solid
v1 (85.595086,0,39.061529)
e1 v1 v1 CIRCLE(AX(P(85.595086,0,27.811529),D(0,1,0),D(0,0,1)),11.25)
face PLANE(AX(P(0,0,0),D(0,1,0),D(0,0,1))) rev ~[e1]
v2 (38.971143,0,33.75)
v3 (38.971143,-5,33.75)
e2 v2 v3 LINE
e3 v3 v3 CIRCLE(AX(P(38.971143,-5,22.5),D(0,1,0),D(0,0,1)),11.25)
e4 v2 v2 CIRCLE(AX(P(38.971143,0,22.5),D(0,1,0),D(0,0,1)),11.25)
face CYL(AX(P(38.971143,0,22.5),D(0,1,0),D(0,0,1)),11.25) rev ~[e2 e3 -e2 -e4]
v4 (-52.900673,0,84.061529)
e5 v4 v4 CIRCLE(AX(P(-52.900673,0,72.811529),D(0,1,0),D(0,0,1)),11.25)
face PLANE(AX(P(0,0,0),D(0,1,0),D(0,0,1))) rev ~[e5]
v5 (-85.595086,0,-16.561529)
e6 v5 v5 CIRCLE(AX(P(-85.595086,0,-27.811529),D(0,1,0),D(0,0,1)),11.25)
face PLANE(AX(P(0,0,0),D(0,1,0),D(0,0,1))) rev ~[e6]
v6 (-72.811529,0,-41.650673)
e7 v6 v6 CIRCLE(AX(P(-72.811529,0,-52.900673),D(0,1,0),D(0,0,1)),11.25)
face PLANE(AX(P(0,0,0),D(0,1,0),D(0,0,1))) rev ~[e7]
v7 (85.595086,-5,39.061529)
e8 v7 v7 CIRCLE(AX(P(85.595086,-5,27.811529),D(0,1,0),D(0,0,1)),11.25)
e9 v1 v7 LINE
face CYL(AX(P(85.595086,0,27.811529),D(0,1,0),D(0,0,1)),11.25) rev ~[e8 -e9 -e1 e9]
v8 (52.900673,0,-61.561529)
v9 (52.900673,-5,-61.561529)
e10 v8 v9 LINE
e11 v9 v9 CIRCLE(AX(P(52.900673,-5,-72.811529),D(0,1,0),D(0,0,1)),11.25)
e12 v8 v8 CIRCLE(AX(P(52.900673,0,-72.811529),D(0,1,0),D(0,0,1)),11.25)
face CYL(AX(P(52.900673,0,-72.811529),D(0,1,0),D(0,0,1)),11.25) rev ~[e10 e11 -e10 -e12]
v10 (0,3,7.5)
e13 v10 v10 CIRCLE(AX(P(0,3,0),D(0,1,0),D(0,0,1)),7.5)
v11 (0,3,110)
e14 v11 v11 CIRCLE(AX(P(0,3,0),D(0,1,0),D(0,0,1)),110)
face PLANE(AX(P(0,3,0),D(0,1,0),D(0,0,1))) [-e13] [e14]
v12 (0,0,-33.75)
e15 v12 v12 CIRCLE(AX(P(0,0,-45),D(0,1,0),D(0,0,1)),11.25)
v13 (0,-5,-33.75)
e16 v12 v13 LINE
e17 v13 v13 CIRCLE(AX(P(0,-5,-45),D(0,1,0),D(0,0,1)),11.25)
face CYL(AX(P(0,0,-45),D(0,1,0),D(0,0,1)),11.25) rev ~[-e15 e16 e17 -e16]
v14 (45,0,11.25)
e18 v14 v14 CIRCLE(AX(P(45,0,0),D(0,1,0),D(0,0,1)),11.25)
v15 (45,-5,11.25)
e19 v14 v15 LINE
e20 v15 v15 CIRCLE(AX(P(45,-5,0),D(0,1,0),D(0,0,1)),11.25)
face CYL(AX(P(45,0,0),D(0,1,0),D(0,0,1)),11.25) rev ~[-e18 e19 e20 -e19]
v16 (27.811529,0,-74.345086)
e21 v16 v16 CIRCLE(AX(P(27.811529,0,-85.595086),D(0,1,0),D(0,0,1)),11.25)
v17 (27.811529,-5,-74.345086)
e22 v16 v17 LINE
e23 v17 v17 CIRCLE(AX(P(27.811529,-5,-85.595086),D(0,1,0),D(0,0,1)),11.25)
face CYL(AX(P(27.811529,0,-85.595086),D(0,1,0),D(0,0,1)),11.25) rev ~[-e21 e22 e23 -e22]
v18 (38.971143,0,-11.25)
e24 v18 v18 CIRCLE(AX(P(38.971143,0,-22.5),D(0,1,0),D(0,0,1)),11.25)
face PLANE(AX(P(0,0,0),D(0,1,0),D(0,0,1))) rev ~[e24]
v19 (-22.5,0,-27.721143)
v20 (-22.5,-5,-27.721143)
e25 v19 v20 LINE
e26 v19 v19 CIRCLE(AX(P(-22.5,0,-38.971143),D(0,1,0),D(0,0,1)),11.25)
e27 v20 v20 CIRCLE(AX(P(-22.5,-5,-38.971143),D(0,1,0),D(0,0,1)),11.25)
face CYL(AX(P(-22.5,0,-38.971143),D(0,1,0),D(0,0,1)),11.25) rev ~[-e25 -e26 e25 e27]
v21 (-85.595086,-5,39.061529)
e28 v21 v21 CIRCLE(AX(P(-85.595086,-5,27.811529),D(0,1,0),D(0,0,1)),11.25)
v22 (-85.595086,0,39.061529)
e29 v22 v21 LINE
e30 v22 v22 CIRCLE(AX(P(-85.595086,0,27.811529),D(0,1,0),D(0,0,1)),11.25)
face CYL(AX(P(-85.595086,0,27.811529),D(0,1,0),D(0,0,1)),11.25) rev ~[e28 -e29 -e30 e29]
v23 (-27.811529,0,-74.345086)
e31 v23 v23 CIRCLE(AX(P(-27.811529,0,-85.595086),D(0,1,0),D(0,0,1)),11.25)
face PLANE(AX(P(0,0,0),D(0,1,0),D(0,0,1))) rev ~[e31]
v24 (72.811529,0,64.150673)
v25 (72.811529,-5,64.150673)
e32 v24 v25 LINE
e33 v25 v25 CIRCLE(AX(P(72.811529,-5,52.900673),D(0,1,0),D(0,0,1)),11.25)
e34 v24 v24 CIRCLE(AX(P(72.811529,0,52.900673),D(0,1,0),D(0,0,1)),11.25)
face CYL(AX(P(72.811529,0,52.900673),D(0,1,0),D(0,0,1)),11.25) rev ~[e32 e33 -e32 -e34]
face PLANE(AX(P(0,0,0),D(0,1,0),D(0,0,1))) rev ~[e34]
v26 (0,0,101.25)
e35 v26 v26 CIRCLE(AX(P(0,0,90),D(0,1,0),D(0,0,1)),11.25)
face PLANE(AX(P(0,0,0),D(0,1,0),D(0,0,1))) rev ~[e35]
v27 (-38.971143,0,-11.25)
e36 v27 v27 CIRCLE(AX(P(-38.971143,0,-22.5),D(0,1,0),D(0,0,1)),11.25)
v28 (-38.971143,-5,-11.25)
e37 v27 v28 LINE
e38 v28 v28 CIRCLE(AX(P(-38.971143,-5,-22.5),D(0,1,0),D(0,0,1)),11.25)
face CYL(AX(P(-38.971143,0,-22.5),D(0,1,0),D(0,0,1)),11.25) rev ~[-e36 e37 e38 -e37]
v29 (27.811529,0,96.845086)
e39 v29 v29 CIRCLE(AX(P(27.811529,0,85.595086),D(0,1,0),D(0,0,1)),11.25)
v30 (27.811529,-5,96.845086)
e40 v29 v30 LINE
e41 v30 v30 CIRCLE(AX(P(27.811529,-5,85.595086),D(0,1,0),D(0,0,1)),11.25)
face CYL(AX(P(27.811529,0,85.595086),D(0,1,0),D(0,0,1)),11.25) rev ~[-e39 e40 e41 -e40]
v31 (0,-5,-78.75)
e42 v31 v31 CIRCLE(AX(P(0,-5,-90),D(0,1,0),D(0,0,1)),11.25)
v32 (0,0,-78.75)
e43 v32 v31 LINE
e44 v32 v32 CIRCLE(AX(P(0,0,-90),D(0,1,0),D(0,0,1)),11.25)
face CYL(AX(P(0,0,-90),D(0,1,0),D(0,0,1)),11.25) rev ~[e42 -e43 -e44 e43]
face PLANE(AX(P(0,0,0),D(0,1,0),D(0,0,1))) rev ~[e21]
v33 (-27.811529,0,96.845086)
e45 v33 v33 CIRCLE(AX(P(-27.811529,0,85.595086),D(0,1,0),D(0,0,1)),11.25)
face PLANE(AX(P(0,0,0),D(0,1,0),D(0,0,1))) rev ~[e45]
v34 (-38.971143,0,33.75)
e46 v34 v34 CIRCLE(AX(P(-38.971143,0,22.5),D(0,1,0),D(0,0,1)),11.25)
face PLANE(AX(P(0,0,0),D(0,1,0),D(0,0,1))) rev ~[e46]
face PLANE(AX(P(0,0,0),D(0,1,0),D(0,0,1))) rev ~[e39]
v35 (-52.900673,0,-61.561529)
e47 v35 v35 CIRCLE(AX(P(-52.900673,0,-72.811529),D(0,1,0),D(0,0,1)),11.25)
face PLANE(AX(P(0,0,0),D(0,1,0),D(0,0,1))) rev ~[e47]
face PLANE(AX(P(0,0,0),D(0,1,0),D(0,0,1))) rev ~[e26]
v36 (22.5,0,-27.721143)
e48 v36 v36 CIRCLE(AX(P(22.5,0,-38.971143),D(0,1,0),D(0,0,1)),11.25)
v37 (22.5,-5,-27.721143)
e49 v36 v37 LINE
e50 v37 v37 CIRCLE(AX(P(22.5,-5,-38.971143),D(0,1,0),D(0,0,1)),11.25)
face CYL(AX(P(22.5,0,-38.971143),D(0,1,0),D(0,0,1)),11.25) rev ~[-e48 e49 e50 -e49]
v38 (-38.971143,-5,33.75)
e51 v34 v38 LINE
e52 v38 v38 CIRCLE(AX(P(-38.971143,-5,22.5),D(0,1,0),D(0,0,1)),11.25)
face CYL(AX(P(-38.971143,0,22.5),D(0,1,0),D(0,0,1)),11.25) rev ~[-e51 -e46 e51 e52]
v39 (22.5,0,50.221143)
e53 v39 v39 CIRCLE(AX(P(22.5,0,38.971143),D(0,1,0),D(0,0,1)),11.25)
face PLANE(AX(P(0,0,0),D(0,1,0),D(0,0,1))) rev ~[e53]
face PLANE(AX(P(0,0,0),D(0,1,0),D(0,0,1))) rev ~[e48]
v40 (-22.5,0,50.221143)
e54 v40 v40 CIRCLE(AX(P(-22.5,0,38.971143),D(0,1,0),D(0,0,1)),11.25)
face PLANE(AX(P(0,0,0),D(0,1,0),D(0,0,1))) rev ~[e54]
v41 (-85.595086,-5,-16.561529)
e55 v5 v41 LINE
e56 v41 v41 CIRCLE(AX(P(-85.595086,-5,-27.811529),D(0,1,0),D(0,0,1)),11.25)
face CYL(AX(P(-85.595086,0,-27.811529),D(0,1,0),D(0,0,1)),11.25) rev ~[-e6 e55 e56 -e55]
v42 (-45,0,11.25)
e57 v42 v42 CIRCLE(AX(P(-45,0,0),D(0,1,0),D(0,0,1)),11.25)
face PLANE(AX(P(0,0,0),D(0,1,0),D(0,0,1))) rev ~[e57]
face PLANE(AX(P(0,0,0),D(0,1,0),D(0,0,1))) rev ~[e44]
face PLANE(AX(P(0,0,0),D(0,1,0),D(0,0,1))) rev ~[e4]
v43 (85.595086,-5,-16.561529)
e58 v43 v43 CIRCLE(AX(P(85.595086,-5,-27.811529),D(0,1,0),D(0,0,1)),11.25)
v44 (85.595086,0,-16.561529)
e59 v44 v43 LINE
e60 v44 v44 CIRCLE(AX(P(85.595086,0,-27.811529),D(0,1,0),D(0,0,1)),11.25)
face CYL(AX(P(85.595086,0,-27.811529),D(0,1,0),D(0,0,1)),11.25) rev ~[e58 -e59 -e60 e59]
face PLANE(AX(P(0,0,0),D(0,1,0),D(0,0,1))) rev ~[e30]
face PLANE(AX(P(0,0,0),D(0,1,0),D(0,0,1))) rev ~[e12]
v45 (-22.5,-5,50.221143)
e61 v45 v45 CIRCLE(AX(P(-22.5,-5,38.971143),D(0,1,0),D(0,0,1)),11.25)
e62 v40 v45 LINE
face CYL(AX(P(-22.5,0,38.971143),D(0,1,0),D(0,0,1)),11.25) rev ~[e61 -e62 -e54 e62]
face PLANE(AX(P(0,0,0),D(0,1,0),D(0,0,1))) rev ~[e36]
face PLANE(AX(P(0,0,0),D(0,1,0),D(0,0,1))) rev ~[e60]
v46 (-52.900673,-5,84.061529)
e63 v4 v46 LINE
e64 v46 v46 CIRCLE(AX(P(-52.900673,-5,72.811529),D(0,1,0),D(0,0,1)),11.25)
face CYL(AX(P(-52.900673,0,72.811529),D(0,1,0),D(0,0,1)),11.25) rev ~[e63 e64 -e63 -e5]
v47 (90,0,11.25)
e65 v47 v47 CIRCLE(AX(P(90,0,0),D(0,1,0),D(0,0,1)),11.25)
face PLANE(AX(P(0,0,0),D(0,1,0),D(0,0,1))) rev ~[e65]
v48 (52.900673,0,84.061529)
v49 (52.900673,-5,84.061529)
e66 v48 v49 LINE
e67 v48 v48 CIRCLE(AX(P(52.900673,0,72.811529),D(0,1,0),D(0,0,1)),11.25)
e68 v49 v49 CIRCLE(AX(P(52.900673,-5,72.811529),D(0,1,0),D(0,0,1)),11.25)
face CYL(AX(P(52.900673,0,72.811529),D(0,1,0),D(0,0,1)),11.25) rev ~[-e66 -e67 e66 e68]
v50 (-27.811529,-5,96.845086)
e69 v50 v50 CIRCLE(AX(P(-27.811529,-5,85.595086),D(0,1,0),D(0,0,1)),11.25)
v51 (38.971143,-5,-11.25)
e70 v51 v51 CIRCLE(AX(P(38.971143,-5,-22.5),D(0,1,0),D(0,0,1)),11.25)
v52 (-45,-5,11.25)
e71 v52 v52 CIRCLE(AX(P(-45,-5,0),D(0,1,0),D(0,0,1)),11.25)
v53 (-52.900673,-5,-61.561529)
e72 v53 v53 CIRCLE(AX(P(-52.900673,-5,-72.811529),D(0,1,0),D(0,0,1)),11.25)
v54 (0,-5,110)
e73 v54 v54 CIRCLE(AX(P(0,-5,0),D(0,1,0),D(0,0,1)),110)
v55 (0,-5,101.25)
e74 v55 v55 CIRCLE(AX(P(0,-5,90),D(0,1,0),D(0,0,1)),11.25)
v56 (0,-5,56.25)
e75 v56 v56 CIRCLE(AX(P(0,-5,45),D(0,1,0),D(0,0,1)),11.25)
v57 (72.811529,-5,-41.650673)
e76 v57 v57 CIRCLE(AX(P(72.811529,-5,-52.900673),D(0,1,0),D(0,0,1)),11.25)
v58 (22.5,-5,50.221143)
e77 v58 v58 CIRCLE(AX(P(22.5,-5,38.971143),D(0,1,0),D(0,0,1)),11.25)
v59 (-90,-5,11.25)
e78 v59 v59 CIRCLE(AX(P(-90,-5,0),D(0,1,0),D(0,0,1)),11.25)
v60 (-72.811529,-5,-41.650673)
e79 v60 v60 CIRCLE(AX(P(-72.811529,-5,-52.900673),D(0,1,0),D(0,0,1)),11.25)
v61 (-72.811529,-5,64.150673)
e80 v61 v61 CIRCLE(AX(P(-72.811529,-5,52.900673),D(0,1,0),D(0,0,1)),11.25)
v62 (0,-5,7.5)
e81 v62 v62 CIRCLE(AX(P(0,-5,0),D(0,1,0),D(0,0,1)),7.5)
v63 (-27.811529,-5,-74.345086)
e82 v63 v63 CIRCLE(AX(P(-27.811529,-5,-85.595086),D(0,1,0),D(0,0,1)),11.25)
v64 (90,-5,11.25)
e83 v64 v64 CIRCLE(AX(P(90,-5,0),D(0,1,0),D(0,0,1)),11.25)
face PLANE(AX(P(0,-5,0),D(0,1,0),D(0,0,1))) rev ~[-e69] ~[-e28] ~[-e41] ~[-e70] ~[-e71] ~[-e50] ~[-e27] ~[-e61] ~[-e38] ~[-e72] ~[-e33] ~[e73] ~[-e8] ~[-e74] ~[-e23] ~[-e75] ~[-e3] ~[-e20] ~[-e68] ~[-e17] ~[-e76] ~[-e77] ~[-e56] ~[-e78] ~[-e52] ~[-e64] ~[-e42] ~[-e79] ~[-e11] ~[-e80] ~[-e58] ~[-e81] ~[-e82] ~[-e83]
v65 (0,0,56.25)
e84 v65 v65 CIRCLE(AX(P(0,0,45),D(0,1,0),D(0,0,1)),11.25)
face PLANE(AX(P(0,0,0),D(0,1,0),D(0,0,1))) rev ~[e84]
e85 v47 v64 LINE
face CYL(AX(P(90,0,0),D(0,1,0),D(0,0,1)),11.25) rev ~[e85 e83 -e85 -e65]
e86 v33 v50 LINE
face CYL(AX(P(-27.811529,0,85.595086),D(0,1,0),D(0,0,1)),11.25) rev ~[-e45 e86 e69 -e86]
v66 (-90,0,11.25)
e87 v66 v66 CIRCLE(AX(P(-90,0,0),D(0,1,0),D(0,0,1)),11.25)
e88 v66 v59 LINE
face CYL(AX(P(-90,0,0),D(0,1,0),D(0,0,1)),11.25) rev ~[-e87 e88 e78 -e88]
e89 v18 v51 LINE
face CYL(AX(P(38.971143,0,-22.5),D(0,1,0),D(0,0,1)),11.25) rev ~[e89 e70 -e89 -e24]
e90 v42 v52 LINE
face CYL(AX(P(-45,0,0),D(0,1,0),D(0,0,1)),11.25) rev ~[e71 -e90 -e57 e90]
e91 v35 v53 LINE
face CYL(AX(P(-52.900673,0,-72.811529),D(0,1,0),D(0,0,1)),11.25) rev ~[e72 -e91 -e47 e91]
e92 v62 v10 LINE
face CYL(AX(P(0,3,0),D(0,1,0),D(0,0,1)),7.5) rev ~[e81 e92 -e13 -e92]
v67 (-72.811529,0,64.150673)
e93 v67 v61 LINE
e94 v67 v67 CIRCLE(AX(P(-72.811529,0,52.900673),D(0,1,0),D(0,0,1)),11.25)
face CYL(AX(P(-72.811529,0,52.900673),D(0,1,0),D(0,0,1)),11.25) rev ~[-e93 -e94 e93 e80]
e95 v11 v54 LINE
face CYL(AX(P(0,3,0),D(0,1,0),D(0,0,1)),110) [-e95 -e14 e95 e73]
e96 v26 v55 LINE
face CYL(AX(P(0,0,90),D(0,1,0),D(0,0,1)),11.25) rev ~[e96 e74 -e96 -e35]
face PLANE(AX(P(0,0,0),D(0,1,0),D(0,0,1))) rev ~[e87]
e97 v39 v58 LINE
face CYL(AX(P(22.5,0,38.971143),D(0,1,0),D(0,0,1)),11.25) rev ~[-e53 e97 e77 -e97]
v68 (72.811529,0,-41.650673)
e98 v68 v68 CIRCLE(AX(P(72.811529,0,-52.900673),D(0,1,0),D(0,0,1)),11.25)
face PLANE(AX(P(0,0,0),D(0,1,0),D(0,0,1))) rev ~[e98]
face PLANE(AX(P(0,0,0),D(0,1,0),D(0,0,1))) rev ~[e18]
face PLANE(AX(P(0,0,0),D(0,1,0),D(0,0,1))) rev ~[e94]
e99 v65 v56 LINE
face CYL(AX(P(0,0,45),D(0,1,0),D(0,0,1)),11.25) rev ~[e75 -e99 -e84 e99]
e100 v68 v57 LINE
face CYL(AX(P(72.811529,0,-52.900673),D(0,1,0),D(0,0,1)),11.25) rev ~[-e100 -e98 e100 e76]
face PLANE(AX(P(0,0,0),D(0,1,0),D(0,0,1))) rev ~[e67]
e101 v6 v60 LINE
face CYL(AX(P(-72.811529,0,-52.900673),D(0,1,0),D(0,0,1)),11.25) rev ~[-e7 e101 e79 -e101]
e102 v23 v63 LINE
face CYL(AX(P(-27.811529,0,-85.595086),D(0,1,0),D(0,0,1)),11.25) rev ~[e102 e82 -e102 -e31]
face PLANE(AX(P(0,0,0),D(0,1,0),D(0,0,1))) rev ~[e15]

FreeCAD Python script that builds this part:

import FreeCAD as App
import Part
import Sketcher
from FreeCAD import Vector

doc = App.newDocument("Part")
body = doc.addObject("PartDesign::Body", "Body")

sketch1 = body.newObject("Sketcher::SketchObject", "Sketch")
sketch1.AttachmentSupport = (doc.getObject("XZ_Plane"), [""])
sketch1.MapMode = "FlatFace"
sketch1.addGeometry([
    Part.Circle(Vector(0, 0, 0), Vector(0, 0, 1), 110),
    Part.Circle(Vector(-73, -53, 0), Vector(0, 0, 1), 11),
    Part.Circle(Vector(-53, -73, 0), Vector(0, 0, 1), 11),
    Part.Circle(Vector(-86, -28, 0), Vector(0, 0, 1), 11),
    Part.Circle(Vector(-28, -86, 0), Vector(0, 0, 1), 11),
    Part.Circle(Vector(0, -90, 0), Vector(0, 0, 1), 11),
    Part.Circle(Vector(-39, -22, 0), Vector(0, 0, 1), 11),
    Part.Circle(Vector(-22, -39, 0), Vector(0, 0, 1), 11),
    Part.Circle(Vector(-90, 0, 0), Vector(0, 0, 1), 11),
    Part.Circle(Vector(-86, 28, 0), Vector(0, 0, 1), 11),
    Part.Circle(Vector(-73, 53, 0), Vector(0, 0, 1), 11),
    Part.Circle(Vector(-53, 73, 0), Vector(0, 0, 1), 11),
    Part.Circle(Vector(-45, 0, 0), Vector(0, 0, 1), 11),
    Part.Circle(Vector(-39, 22, 0), Vector(0, 0, 1), 11),
    Part.Circle(Vector(-22, 39, 0), Vector(0, 0, 1), 11),
    Part.Circle(Vector(-28, 86, 0), Vector(0, 0, 1), 11),
    Part.Circle(Vector(28, -86, 0), Vector(0, 0, 1), 11),
    Part.Circle(Vector(0, -45, 0), Vector(0, 0, 1), 11),
    Part.Circle(Vector(22, -39, 0), Vector(0, 0, 1), 11),
    Part.Circle(Vector(39, -22, 0), Vector(0, 0, 1), 11),
    Part.Circle(Vector(53, -73, 0), Vector(0, 0, 1), 11),
    Part.Circle(Vector(73, -53, 0), Vector(0, 0, 1), 11),
    Part.Circle(Vector(86, -28, 0), Vector(0, 0, 1), 11),
    Part.Circle(Vector(90, 0, 0), Vector(0, 0, 1), 11),
    Part.Circle(Vector(0, 0, 0), Vector(0, 0, 1), 8),
    Part.Circle(Vector(0, 45, 0), Vector(0, 0, 1), 11),
    Part.Circle(Vector(22, 39, 0), Vector(0, 0, 1), 11),
    Part.Circle(Vector(45, 0, 0), Vector(0, 0, 1), 11),
    Part.Circle(Vector(39, 22, 0), Vector(0, 0, 1), 11),
    Part.Circle(Vector(0, 90, 0), Vector(0, 0, 1), 11),
    Part.Circle(Vector(28, 86, 0), Vector(0, 0, 1), 11),
    Part.Circle(Vector(86, 28, 0), Vector(0, 0, 1), 11),
    Part.Circle(Vector(53, 73, 0), Vector(0, 0, 1), 11),
    Part.Circle(Vector(73, 53, 0), Vector(0, 0, 1), 11),
], False)
sketch1.addConstraint([
    Sketcher.Constraint("Coincident", 0, 3, -1, 1),
    Sketcher.Constraint("Coincident", 24, 3, -1, 1),
    Sketcher.Constraint("Equal", 1, 2),
    Sketcher.Constraint("Equal", 2, 3),
    Sketcher.Constraint("Equal", 3, 4),
    Sketcher.Constraint("Equal", 4, 5),
    Sketcher.Constraint("Equal", 5, 6),
    Sketcher.Constraint("Equal", 6, 7),
    Sketcher.Constraint("Equal", 7, 8),
    Sketcher.Constraint("Equal", 8, 9),
    Sketcher.Constraint("Equal", 9, 10),
    Sketcher.Constraint("Equal", 10, 11),
    Sketcher.Constraint("Equal", 11, 12),
    Sketcher.Constraint("Equal", 12, 13),
    Sketcher.Constraint("Equal", 13, 14),
    Sketcher.Constraint("Equal", 14, 15),
    Sketcher.Constraint("Equal", 15, 16),
    Sketcher.Constraint("Equal", 16, 17),
    Sketcher.Constraint("Equal", 17, 18),
    Sketcher.Constraint("Equal", 18, 19),
    Sketcher.Constraint("Equal", 19, 20),
    Sketcher.Constraint("Equal", 20, 21),
    Sketcher.Constraint("Equal", 21, 22),
    Sketcher.Constraint("Equal", 22, 23),
    Sketcher.Constraint("Equal", 23, 25),
    Sketcher.Constraint("Equal", 25, 26),
    Sketcher.Constraint("Equal", 26, 27),
    Sketcher.Constraint("Equal", 27, 28),
    Sketcher.Constraint("Equal", 28, 29),
    Sketcher.Constraint("Equal", 29, 30),
    Sketcher.Constraint("Equal", 30, 31),
    Sketcher.Constraint("Equal", 31, 32),
    Sketcher.Constraint("Equal", 32, 33),
    Sketcher.Constraint("Symmetric", 15, 3, 16, 3, -1, 1),
    Sketcher.Constraint("Symmetric", 14, 3, 18, 3, -1, 1),
    Sketcher.Constraint("Symmetric", 13, 3, 19, 3, -1, 1),
    Sketcher.Constraint("Symmetric", 11, 3, 20, 3, -1, 1),
    Sketcher.Constraint("Symmetric", 10, 3, 21, 3, -1, 1),
    Sketcher.Constraint("Symmetric", 9, 3, 22, 3, -1, 1),
    Sketcher.Constraint("Symmetric", 8, 3, 23, 3, -1, 1),
    Sketcher.Constraint("Symmetric", 17, 3, 25, 3, -1, 1),
    Sketcher.Constraint("Symmetric", 7, 3, 26, 3, -1, 1),
    Sketcher.Constraint("Symmetric", 12, 3, 27, 3, -1, 1),
    Sketcher.Constraint("Symmetric", 6, 3, 28, 3, -1, 1),
    Sketcher.Constraint("Symmetric", 5, 3, 29, 3, -1, 1),
    Sketcher.Constraint("Symmetric", 4, 3, 30, 3, -1, 1),
    Sketcher.Constraint("Symmetric", 3, 3, 31, 3, -1, 1),
    Sketcher.Constraint("Symmetric", 2, 3, 32, 3, -1, 1),
    Sketcher.Constraint("Symmetric", 1, 3, 33, 3, -1, 1),
    Sketcher.Constraint("Symmetric", 4, 3, 16, 3, -2),
    Sketcher.Constraint("Symmetric", 7, 3, 18, 3, -2),
    Sketcher.Constraint("Symmetric", 6, 3, 19, 3, -2),
    Sketcher.Constraint("Symmetric", 2, 3, 20, 3, -2),
    Sketcher.Constraint("Symmetric", 1, 3, 21, 3, -2),
    Sketcher.Constraint("Symmetric", 3, 3, 22, 3, -2),
    Sketcher.Constraint("PointOnObject", 5, 3, -2),
    Sketcher.Constraint("PointOnObject", 8, 3, -1),
    Sketcher.Constraint("PointOnObject", 12, 3, -1),
    Sketcher.Constraint("PointOnObject", 17, 3, -2),
    Sketcher.Constraint("Diameter", 0, 220.0),
    Sketcher.Constraint("Diameter", 24, 15.0),
    Sketcher.Constraint("Diameter", 1, 22.5),
    Sketcher.Constraint("DistanceY", 5, 3, -1, 1, 90.0),
    Sketcher.Constraint("DistanceX", 8, 3, -1, 1, 90.0),
    Sketcher.Constraint("DistanceX", 12, 3, -1, 1, 45.0),
    Sketcher.Constraint("DistanceY", 17, 3, -1, 1, 45.0),
    Sketcher.Constraint("DistanceY", 2, 3, 3, 3, 45.0),
    Sketcher.Constraint("DistanceX", 1, 3, 4, 3, 45.0),
    Sketcher.Constraint("DistanceY", 6, 3, 13, 3, 45.0),
    Sketcher.Constraint("DistanceX", 7, 3, 18, 3, 45.0),
    Sketcher.Constraint("DistanceX", 1, 3, -1, 1, 72.811529),
    Sketcher.Constraint("DistanceY", 2, 3, -1, 1, 72.811529),
    Sketcher.Constraint("DistanceX", 2, 3, 6, 3, 13.92953),
    Sketcher.Constraint("DistanceY", 1, 3, 7, 3, 13.92953),
    Sketcher.Constraint("DistanceY", 1, 3, -1, 1, 52.900673),
    Sketcher.Constraint("DistanceX", 2, 3, -1, 1, 52.900673),
    Sketcher.Constraint("DistanceX", 3, 3, -1, 1, 85.595086),
    Sketcher.Constraint("DistanceY", 4, 3, -1, 1, 85.595086),
])
pad1 = body.newObject("PartDesign::Pad", "Pad")
pad1.Profile = sketch1
pad1.Length = 5

sketch2 = body.newObject("Sketcher::SketchObject", "Sketch001")
sketch2.AttachmentSupport = (doc.getObject("XZ_Plane"), [""])
sketch2.MapMode = "FlatFace"
sketch2.AttachmentOffset = App.Placement(Vector(0, 0, -3), App.Rotation())
sketch2.addGeometry([
    Part.Circle(Vector(0, 0, 0), Vector(0, 0, 1), 110),
    Part.Circle(Vector(0, 0, 0), Vector(0, 0, 1), 8),
], False)
sketch2.addConstraint([
    Sketcher.Constraint("Coincident", 0, 3, -1, 1),
    Sketcher.Constraint("Coincident", 1, 3, -1, 1),
    Sketcher.Constraint("Diameter", 0, 220.0),
    Sketcher.Constraint("Diameter", 1, 15.0),
])
pad2 = body.newObject("PartDesign::Pad", "Pad001")
pad2.Profile = sketch2
pad2.Length = 3

doc.recompute()
